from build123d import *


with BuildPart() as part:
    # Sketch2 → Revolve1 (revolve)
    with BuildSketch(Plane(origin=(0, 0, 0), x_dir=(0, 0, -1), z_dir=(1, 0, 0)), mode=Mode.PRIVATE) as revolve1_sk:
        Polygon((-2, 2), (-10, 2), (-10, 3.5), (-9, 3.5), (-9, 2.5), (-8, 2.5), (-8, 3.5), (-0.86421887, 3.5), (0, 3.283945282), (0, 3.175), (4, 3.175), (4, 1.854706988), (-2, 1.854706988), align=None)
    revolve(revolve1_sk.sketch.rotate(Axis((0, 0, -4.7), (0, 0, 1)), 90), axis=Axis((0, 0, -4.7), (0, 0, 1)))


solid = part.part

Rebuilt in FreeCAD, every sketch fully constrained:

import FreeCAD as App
import Part
import Sketcher

doc = App.newDocument("Part")
body = doc.addObject("PartDesign::Body", "Body")

# Sketch on YZ plane
sketch1 = body.newObject("Sketcher::SketchObject", "Sketch")
sketch1.AttachmentSupport = (doc.getObject("YZ_Plane"), [""])
sketch1.MapMode = "FlatFace"
sketch1.addGeometry([
    Part.LineSegment(App.Vector(2, 10, 0), App.Vector(2, 2, 0)),  # 0
    Part.LineSegment(App.Vector(2, 2, 0), App.Vector(1.85, 2, 0)),  # 1
    Part.LineSegment(App.Vector(1.85, 2, 0), App.Vector(1.85, -4, 0)),  # 2
    Part.LineSegment(App.Vector(1.85, -4, 0), App.Vector(3.17, -4, 0)),  # 3
    Part.LineSegment(App.Vector(3.17, -4, 0), App.Vector(3.17, 0, 0)),  # 4
    Part.LineSegment(App.Vector(3.17, 0, 0), App.Vector(3.28, 0, 0)),  # 5
    Part.LineSegment(App.Vector(3.28, 0, 0), App.Vector(3.5, 0.86, 0)),  # 6
    Part.LineSegment(App.Vector(3.5, 0.86, 0), App.Vector(3.5, 8, 0)),  # 7
    Part.LineSegment(App.Vector(3.5, 8, 0), App.Vector(2.5, 8, 0)),  # 8
    Part.LineSegment(App.Vector(2.5, 8, 0), App.Vector(2.5, 9, 0)),  # 9
    Part.LineSegment(App.Vector(2.5, 9, 0), App.Vector(3.5, 9, 0)),  # 10
    Part.LineSegment(App.Vector(3.5, 9, 0), App.Vector(3.5, 10, 0)),  # 11
    Part.LineSegment(App.Vector(3.5, 10, 0), App.Vector(2, 10, 0)),  # 12
], False)
sketch1.addConstraint([
    Sketcher.Constraint("Coincident", 0, 2, 1, 1),
    Sketcher.Constraint("Coincident", 1, 2, 2, 1),
    Sketcher.Constraint("Coincident", 2, 2, 3, 1),
    Sketcher.Constraint("Coincident", 3, 2, 4, 1),
    Sketcher.Constraint("Coincident", 4, 2, 5, 1),
    Sketcher.Constraint("Coincident", 5, 2, 6, 1),
    Sketcher.Constraint("Coincident", 6, 2, 7, 1),
    Sketcher.Constraint("Coincident", 7, 2, 8, 1),
    Sketcher.Constraint("Coincident", 8, 2, 9, 1),
    Sketcher.Constraint("Coincident", 9, 2, 10, 1),
    Sketcher.Constraint("Coincident", 10, 2, 11, 1),
    Sketcher.Constraint("Coincident", 11, 2, 12, 1),
    Sketcher.Constraint("Coincident", 12, 2, 0, 1),
    Sketcher.Constraint("Vertical", 0),
    Sketcher.Constraint("Horizontal", 1),
    Sketcher.Constraint("Vertical", 2),
    Sketcher.Constraint("Horizontal", 3),
    Sketcher.Constraint("Vertical", 4),
    Sketcher.Constraint("Horizontal", 5),
    Sketcher.Constraint("Vertical", 7),
    Sketcher.Constraint("Horizontal", 8),
    Sketcher.Constraint("Vertical", 9),
    Sketcher.Constraint("Horizontal", 10),
    Sketcher.Constraint("Vertical", 11),
    Sketcher.Constraint("Horizontal", 12),
    Sketcher.Constraint("PointOnObject", 4, 2, -1),
    Sketcher.Constraint("Vertical", 7, 2, 10, 2),
    Sketcher.Constraint("Equal", 10, 9),
    Sketcher.Constraint("Equal", 9, 11),
    Sketcher.Constraint("DistanceX", 8, 2, 8, 1, 1.0),
    Sketcher.Constraint("DistanceY", 0, 2, 0, 1, 8.0),
    Sketcher.Constraint("DistanceY", 2, 2, 2, 1, 6.0),
    Sketcher.Constraint("DistanceY", 4, 1, 4, 2, 4.0),
    Sketcher.Constraint("DistanceX", 12, 2, 12, 1, 1.5),
    Sketcher.Constraint("DistanceX", -1, 1, 0, 2, 2.0),
    Sketcher.Constraint("DistanceX", -1, 1, 3, 2, 3.175),
    Sketcher.Constraint("DistanceY", 7, 1, 7, 2, 7.135781),
    Sketcher.Constraint("DistanceX", 1, 2, 1, 1, 0.145293),
    Sketcher.Constraint("DistanceX", 5, 1, 5, 2, 0.108945),
])
revolution = body.newObject("PartDesign::Revolution", "Revolution")
revolution.Profile = sketch1
revolution.ReferenceAxis = (sketch1, ["V_Axis"])
revolution.Angle = 360

doc.recompute()
